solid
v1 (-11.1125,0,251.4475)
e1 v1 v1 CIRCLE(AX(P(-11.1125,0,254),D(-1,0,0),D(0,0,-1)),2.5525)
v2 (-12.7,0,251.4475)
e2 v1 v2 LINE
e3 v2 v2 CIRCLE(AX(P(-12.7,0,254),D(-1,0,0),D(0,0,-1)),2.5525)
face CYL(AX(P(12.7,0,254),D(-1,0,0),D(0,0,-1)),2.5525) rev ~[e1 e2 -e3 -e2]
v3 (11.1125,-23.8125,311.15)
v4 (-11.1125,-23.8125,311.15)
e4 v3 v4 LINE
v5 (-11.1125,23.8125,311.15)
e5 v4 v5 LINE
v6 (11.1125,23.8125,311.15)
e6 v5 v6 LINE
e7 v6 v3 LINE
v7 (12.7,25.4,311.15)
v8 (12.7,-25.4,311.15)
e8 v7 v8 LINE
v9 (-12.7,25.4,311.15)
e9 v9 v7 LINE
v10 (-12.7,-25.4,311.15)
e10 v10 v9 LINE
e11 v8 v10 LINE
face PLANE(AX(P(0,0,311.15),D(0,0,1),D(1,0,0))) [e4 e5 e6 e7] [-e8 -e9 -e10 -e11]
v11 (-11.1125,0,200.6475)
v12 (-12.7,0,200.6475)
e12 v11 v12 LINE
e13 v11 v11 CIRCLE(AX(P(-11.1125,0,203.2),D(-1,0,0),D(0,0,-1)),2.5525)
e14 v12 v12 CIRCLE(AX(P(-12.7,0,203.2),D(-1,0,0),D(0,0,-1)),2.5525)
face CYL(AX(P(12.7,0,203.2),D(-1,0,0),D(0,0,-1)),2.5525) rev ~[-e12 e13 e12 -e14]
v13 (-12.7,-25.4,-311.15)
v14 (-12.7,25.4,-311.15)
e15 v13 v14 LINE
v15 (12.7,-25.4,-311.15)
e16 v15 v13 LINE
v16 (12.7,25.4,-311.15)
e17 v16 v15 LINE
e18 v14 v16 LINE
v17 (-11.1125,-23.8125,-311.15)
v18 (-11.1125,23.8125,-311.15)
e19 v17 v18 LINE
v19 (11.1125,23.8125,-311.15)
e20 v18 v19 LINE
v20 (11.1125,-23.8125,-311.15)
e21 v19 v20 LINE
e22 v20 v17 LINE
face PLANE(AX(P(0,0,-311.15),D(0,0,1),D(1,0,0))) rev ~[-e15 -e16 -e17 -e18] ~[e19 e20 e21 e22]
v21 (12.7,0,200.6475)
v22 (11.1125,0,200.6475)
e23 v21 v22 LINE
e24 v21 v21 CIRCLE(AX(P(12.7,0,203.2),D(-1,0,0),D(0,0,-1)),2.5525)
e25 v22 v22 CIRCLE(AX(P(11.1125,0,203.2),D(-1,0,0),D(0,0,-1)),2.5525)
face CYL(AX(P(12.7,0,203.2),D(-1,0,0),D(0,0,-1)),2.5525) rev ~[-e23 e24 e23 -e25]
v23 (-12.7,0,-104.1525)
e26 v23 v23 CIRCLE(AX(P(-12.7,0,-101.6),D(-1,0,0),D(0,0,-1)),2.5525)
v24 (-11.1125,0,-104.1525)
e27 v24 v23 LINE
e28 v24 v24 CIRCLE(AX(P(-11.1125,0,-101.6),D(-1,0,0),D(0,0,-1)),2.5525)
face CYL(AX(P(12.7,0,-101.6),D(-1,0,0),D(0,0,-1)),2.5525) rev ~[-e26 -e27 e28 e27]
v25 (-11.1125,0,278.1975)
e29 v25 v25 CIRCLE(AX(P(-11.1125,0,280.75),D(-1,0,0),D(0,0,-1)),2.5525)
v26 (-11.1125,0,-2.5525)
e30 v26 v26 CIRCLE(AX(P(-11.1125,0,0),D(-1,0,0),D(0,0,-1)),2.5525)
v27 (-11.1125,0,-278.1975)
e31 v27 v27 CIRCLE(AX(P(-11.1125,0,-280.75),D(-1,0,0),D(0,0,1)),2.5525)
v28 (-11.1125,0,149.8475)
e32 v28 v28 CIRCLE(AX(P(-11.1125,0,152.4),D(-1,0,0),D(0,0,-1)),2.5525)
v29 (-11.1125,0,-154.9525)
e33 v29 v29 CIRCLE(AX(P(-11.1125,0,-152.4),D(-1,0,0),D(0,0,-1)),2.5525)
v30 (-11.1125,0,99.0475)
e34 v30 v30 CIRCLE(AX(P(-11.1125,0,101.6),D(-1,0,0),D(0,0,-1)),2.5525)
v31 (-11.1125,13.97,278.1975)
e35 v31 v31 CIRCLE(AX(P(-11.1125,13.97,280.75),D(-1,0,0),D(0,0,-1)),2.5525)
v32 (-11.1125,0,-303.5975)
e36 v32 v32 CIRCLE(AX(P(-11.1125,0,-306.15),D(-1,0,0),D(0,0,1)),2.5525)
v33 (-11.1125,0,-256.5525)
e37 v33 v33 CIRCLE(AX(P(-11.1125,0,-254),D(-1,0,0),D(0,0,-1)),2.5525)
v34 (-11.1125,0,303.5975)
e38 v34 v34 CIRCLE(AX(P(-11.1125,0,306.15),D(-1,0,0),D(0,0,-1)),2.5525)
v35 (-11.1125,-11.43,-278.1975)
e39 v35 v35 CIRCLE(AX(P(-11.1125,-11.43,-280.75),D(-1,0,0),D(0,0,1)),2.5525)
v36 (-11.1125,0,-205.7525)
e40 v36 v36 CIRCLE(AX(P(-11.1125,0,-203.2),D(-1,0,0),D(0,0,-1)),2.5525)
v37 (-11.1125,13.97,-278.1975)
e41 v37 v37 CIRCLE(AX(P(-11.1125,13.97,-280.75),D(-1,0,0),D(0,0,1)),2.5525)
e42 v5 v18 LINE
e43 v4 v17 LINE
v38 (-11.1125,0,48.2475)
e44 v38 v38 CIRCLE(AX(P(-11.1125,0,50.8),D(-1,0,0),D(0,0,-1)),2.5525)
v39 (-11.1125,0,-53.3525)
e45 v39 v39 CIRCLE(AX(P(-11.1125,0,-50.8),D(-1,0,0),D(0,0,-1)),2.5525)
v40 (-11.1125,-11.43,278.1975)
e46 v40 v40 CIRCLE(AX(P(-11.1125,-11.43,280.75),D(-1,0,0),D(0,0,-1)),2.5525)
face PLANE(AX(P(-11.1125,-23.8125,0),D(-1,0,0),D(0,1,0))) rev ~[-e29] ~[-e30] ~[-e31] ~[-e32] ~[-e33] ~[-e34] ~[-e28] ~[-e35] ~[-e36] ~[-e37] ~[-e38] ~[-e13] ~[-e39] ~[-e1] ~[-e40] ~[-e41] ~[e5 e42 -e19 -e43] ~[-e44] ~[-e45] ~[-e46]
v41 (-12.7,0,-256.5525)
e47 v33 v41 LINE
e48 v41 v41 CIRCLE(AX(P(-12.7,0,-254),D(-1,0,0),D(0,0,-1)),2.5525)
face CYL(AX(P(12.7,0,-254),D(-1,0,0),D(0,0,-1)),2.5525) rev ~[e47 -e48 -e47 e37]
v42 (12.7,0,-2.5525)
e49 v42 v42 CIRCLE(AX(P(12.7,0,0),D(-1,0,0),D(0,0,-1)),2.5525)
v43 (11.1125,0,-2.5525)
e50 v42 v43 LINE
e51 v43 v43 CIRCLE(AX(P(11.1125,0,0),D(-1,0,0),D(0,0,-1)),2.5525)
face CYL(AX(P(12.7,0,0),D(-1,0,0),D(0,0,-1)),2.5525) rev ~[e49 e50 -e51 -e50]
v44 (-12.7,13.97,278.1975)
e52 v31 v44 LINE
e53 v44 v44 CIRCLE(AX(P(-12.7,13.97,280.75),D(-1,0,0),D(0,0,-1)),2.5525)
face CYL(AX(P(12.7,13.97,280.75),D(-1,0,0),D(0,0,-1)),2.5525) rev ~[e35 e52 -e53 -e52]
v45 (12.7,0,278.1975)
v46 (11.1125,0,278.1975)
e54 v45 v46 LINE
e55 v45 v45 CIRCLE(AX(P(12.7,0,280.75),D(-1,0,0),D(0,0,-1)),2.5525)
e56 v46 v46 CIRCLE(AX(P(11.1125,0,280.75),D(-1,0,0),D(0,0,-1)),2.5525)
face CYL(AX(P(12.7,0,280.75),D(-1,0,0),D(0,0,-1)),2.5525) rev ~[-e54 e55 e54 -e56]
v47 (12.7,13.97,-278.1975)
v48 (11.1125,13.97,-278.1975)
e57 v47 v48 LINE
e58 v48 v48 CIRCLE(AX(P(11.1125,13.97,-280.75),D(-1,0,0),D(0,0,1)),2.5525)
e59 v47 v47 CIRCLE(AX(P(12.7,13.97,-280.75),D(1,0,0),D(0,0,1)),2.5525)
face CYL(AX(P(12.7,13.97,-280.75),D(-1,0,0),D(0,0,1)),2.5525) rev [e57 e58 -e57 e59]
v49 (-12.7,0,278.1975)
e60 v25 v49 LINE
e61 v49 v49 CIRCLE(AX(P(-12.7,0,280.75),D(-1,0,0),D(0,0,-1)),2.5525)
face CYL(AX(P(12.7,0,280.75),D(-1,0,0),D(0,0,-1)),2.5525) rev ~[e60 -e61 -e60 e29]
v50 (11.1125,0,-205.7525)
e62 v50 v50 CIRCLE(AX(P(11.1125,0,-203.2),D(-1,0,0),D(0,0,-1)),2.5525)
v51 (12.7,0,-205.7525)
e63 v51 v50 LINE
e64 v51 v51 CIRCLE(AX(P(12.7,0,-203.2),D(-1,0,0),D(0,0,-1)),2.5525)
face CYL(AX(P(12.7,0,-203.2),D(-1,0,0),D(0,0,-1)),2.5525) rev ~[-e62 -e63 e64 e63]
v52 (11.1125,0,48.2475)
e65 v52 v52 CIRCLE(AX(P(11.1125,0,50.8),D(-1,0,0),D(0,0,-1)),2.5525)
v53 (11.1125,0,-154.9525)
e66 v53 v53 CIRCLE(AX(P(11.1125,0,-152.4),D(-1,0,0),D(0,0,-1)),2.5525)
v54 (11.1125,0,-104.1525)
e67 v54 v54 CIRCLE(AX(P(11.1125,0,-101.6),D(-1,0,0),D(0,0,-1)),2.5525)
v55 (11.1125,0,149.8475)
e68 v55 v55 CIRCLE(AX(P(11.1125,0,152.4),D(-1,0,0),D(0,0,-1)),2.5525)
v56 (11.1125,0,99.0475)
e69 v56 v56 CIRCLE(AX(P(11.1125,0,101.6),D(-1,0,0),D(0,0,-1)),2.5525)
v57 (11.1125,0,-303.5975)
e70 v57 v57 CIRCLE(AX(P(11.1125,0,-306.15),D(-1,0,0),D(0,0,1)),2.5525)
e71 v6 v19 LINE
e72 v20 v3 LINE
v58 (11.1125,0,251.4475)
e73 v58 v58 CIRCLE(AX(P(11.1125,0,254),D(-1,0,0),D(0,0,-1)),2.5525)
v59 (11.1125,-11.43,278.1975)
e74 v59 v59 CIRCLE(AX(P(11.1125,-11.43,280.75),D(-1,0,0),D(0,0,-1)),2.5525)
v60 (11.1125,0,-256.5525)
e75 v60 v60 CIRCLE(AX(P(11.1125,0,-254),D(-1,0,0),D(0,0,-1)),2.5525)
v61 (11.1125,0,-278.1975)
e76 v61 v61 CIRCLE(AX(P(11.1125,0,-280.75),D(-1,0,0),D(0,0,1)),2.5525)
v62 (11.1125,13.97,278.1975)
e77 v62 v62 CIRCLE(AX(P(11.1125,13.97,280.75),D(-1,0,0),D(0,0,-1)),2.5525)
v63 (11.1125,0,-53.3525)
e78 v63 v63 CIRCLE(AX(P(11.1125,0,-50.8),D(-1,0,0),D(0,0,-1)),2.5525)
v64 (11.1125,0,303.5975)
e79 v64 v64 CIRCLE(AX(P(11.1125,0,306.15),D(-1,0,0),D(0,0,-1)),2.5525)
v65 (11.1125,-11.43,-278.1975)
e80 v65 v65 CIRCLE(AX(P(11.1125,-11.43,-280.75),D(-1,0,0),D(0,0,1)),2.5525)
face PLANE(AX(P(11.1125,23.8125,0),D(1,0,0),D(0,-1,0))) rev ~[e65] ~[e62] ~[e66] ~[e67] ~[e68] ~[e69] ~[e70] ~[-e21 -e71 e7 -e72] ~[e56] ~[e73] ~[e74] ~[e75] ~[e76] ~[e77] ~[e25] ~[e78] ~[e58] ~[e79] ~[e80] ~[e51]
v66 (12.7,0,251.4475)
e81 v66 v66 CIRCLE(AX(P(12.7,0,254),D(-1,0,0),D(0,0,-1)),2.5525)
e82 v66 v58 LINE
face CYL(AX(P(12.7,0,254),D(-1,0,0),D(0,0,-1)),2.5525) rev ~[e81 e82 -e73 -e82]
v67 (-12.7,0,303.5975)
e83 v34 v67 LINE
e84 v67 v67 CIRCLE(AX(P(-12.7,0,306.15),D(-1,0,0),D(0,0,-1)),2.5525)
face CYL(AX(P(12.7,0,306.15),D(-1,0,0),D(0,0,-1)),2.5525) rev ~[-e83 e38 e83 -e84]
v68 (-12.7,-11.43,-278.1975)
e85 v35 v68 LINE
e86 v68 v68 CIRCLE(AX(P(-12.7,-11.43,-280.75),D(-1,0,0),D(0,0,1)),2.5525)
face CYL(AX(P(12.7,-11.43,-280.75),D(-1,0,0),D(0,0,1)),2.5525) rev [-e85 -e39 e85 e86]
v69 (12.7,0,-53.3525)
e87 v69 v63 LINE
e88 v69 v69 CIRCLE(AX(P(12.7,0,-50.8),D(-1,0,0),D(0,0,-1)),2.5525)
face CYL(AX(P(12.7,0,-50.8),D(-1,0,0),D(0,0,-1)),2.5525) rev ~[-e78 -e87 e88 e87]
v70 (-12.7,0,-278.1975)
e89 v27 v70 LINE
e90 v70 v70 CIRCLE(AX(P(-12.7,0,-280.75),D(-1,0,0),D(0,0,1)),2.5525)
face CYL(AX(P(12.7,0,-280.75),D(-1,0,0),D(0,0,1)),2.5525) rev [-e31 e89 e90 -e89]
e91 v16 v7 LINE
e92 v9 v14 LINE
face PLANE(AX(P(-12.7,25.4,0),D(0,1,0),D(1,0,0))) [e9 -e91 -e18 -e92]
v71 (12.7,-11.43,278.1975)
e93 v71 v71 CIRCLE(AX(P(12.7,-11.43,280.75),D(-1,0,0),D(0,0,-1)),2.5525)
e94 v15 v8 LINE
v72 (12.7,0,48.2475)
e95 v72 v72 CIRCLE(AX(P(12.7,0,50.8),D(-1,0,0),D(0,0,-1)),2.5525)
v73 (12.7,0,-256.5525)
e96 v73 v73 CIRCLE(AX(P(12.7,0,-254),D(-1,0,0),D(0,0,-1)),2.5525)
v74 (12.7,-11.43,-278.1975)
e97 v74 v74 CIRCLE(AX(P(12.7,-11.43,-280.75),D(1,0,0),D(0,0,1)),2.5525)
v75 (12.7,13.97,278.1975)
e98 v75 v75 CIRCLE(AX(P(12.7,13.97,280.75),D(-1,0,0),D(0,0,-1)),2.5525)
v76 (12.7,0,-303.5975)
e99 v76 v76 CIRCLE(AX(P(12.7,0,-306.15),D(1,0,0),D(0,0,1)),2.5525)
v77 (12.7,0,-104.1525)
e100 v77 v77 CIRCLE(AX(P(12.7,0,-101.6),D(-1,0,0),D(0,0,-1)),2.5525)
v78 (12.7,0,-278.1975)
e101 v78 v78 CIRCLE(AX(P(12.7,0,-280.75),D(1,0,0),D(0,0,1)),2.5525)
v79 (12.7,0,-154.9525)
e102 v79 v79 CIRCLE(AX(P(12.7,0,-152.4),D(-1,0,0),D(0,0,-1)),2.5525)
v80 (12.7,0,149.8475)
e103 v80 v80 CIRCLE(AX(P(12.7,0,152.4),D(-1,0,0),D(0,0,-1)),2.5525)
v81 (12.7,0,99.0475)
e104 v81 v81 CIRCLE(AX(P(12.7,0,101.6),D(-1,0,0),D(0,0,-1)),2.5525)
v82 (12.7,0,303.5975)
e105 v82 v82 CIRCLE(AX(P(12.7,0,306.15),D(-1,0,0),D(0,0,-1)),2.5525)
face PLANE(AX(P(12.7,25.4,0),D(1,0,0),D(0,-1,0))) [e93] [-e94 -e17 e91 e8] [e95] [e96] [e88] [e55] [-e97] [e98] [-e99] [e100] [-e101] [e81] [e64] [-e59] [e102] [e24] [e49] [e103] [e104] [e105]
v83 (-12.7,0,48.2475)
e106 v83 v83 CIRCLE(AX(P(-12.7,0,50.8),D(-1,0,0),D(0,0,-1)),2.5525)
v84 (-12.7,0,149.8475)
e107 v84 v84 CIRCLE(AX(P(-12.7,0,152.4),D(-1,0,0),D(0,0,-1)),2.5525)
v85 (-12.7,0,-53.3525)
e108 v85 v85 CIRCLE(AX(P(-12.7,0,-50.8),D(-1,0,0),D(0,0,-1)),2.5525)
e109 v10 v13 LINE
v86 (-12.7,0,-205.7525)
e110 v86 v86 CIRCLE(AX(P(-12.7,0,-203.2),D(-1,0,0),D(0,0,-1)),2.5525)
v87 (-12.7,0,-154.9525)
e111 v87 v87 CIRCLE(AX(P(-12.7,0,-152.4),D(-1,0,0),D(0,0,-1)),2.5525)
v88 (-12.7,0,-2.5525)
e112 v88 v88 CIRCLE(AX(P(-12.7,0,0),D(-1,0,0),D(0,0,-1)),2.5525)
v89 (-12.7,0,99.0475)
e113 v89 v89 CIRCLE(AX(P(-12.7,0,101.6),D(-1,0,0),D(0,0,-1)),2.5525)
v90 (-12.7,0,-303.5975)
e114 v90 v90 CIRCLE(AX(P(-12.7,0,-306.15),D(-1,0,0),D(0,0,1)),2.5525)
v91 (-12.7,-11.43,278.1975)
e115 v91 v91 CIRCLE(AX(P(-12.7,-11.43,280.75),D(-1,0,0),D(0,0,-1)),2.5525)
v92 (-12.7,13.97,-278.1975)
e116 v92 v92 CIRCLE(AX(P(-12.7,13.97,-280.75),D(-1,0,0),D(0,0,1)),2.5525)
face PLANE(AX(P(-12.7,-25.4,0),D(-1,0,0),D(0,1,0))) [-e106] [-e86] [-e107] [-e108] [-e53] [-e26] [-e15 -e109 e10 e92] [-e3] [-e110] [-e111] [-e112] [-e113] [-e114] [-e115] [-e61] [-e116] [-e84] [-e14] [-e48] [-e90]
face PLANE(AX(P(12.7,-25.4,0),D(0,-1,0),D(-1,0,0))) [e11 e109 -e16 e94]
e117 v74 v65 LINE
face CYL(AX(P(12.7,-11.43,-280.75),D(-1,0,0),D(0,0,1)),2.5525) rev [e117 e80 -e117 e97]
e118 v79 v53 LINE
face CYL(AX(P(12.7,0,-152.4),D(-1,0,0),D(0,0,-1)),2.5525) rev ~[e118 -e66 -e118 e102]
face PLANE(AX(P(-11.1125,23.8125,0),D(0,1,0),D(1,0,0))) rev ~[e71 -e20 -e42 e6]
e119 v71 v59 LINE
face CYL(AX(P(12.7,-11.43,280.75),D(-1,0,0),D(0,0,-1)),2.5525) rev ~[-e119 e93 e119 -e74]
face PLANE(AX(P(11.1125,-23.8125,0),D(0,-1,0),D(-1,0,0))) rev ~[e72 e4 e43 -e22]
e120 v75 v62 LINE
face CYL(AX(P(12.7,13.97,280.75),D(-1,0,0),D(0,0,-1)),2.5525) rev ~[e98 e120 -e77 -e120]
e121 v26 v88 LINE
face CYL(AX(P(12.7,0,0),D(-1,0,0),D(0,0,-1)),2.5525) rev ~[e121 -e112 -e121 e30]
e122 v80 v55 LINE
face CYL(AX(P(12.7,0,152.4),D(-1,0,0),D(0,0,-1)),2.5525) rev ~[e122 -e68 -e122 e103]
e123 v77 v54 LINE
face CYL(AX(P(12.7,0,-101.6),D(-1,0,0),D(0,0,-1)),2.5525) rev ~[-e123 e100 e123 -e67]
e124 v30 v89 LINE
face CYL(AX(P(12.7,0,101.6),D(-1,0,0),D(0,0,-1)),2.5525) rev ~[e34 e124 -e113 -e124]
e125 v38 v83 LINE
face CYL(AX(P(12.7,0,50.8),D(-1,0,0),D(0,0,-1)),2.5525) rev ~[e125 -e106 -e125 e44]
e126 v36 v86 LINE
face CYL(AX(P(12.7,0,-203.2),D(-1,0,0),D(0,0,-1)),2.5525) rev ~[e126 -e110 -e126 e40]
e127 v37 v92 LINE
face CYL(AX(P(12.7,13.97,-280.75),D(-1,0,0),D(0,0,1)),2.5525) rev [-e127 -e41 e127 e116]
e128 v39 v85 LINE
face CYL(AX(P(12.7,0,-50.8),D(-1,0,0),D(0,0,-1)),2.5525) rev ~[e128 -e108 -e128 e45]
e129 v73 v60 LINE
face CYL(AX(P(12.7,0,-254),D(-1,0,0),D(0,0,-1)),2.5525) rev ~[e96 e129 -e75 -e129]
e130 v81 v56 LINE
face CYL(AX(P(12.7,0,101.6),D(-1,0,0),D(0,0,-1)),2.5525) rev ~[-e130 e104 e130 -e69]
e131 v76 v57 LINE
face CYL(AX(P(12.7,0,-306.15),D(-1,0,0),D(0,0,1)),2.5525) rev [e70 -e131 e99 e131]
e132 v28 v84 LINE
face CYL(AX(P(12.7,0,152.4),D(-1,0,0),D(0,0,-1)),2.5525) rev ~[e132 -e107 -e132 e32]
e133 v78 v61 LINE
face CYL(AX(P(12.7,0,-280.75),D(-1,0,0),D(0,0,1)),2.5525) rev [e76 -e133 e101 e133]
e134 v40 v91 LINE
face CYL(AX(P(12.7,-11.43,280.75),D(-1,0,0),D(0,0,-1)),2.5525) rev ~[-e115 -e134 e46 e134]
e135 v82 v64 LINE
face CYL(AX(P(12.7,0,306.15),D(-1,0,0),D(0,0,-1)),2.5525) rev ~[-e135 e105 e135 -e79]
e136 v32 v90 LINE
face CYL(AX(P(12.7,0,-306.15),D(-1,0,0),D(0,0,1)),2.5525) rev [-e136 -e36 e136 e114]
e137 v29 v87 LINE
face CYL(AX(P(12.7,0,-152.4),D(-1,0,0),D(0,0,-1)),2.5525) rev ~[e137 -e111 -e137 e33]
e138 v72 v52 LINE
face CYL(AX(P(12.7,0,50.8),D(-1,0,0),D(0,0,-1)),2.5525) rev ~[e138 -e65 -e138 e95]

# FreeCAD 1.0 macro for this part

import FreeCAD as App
import Part
import Sketcher
from FreeCAD import Vector
Q = App.Units.Quantity


def add_polygon(sketch, points):
    """Adds a closed chain of lines whose ends are joined by coincident constraints."""
    first, n = sketch.GeometryCount, len(points)
    for a, b in zip(points, points[1:] + points[:1]):
        sketch.addGeometry(Part.LineSegment(App.Vector(*a, 0), App.Vector(*b, 0)), False)
    for i in range(n):
        sketch.addConstraint(Sketcher.Constraint("Coincident", first + i, 2, first + (i + 1) % n, 1))

doc = App.newDocument("Part")
body = doc.addObject("PartDesign::Body", "Body")

# Sketch on XY plane
sketch1 = body.newObject("Sketcher::SketchObject", "Sketch")
sketch1.AttachmentSupport = (doc.getObject("XY_Plane"), [""])
sketch1.MapMode = "FlatFace"
add_polygon(sketch1, [(-12.7, -25.4), (12.7, -25.4), (12.7, 25.4), (-12.7, 25.4)])  # lines 0-3
add_polygon(sketch1, [(11.1125, 23.8125), (11.1125, -23.8125), (-11.1125, -23.8125), (-11.1125, 23.8125)])  # lines 4-7
sketch1.addConstraint(Sketcher.Constraint("Horizontal", 0))
sketch1.addConstraint(Sketcher.Constraint("Vertical", 1))
sketch1.addConstraint(Sketcher.Constraint("Horizontal", 2))
sketch1.addConstraint(Sketcher.Constraint("Vertical", 3))
sketch1.addConstraint(Sketcher.Constraint("Vertical", 4))
sketch1.addConstraint(Sketcher.Constraint("Horizontal", 5))
sketch1.addConstraint(Sketcher.Constraint("Vertical", 6))
sketch1.addConstraint(Sketcher.Constraint("Horizontal", 7))
sketch1.addConstraint(Sketcher.Constraint("Symmetric", 0, 2, 2, 2, -1, 1))
sketch1.addConstraint(Sketcher.Constraint("Symmetric", 4, 2, 6, 2, -1, 1))
sketch1.addConstraint(Sketcher.Constraint("DistanceX", 0, 1, 0, 2, Q("1 in")))
sketch1.addConstraint(Sketcher.Constraint("DistanceY", 1, 1, 1, 2, Q("2 in")))
sketch1.addConstraint(Sketcher.Constraint("DistanceX", 4, 2, 0, 2, Q("0.0625 in")))
sketch1.addConstraint(Sketcher.Constraint("DistanceY", 0, 2, 4, 2, Q("0.0625 in")))
pad1 = body.newObject("PartDesign::Pad", "Pad")
pad1.Profile = sketch1
pad1.Length = Q("24.5 in")
pad1.Midplane = True

# Sketch on YZ plane
sketch2 = body.newObject("Sketcher::SketchObject", "Sketch001")
sketch2.AttachmentSupport = (doc.getObject("YZ_Plane"), [""])
sketch2.MapMode = "FlatFace"
sketch2.AttachmentOffset = App.Placement(Vector(0, 0, 0.5 * 25.4), App.Rotation())
sketch2.addGeometry(Part.Circle(Vector(0, 306.15, 0), Vector(0, 0, 1), 2.5525), False)
sketch2.addGeometry(Part.Circle(Vector(0, 280.75, 0), Vector(0, 0, 1), 2.5525), False)
sketch2.addGeometry(Part.Circle(Vector(13.97, 280.75, 0), Vector(0, 0, 1), 2.5525), False)
sketch2.addGeometry(Part.Circle(Vector(-11.43, 280.75, 0), Vector(0, 0, 1), 2.5525), False)
sketch2.addConstraint(Sketcher.Constraint("Equal", 0, 1))
sketch2.addConstraint(Sketcher.Constraint("Equal", 1, 2))
sketch2.addConstraint(Sketcher.Constraint("Equal", 2, 3))
sketch2.addConstraint(Sketcher.Constraint("PointOnObject", 0, 3, -2))
sketch2.addConstraint(Sketcher.Constraint("PointOnObject", 1, 3, -2))
sketch2.addConstraint(Sketcher.Constraint("Horizontal", 1, 3, 2, 3))
sketch2.addConstraint(Sketcher.Constraint("Horizontal", 2, 3, 3, 3))
sketch2.addConstraint(Sketcher.Constraint("DistanceY", 1, 3, 0, 3, Q("1 in")))
sketch2.addConstraint(Sketcher.Constraint("DistanceX", 3, 3, 2, 3, Q("1 in")))
sketch2.addConstraint(Sketcher.Constraint("Diameter", 0, 5.105))
sketch2.addConstraint(Sketcher.Constraint("DistanceX", -1, 1, 2, 3, Q("0.55 in")))
sketch2.addConstraint(Sketcher.Constraint("DistanceY", -1, 1, 0, 3, 306.15))
doc.recompute()
hole = body.newObject("PartDesign::Hole", "Hole")
hole.Profile = sketch2
hole.ThreadType = "None"
hole.Diameter = 5.105
hole.DepthType = "ThroughAll"
doc.recompute()

mirrored = body.newObject("PartDesign::Mirrored", "Mirrored")
mirrored.Originals = [hole]
mirrored.MirrorPlane = (doc.getObject("XY_Plane"), [""])
body.Tip = mirrored

# Sketch on YZ plane
sketch3 = body.newObject("Sketcher::SketchObject", "Sketch002")
sketch3.AttachmentSupport = (doc.getObject("YZ_Plane"), [""])
sketch3.MapMode = "FlatFace"
sketch3.AttachmentOffset = App.Placement(Vector(0, 0, 0.5 * 25.4), App.Rotation())
sketch3.addGeometry(Part.Circle(Vector(0, 0, 0), Vector(0, 0, 1), 2.5525), False)
sketch3.addGeometry(Part.Circle(Vector(0, 50.8, 0), Vector(0, 0, 1), 2.5525), False)
sketch3.addGeometry(Part.Circle(Vector(0, 101.6, 0), Vector(0, 0, 1), 2.5525), False)
sketch3.addGeometry(Part.Circle(Vector(0, 152.4, 0), Vector(0, 0, 1), 2.5525), False)
sketch3.addGeometry(Part.Circle(Vector(0, 203.2, 0), Vector(0, 0, 1), 2.5525), False)
sketch3.addGeometry(Part.Circle(Vector(0, 254, 0), Vector(0, 0, 1), 2.5525), False)
sketch3.addGeometry(Part.Circle(Vector(0, -50.8, 0), Vector(0, 0, 1), 2.5525), False)
sketch3.addGeometry(Part.Circle(Vector(0, -101.6, 0), Vector(0, 0, 1), 2.5525), False)
sketch3.addGeometry(Part.Circle(Vector(0, -152.4, 0), Vector(0, 0, 1), 2.5525), False)
sketch3.addGeometry(Part.Circle(Vector(0, -203.2, 0), Vector(0, 0, 1), 2.5525), False)
sketch3.addGeometry(Part.Circle(Vector(0, -254, 0), Vector(0, 0, 1), 2.5525), False)
sketch3.addConstraint(Sketcher.Constraint("Coincident", 0, 3, -1, 1))
sketch3.addConstraint(Sketcher.Constraint("Equal", 0, 1))
sketch3.addConstraint(Sketcher.Constraint("Equal", 1, 2))
sketch3.addConstraint(Sketcher.Constraint("Equal", 2, 3))
sketch3.addConstraint(Sketcher.Constraint("Equal", 3, 4))
sketch3.addConstraint(Sketcher.Constraint("Equal", 4, 5))
sketch3.addConstraint(Sketcher.Constraint("Equal", 5, 6))
sketch3.addConstraint(Sketcher.Constraint("Equal", 6, 7))
sketch3.addConstraint(Sketcher.Constraint("Equal", 7, 8))
sketch3.addConstraint(Sketcher.Constraint("Equal", 8, 9))
sketch3.addConstraint(Sketcher.Constraint("Equal", 9, 10))
sketch3.addConstraint(Sketcher.Constraint("Symmetric", 1, 3, 6, 3, -1, 1))
sketch3.addConstraint(Sketcher.Constraint("Symmetric", 2, 3, 7, 3, -1, 1))
sketch3.addConstraint(Sketcher.Constraint("Symmetric", 3, 3, 8, 3, -1, 1))
sketch3.addConstraint(Sketcher.Constraint("Symmetric", 4, 3, 9, 3, -1, 1))
sketch3.addConstraint(Sketcher.Constraint("Symmetric", 5, 3, 10, 3, -1, 1))
sketch3.addConstraint(Sketcher.Constraint("PointOnObject", 1, 3, -2))
sketch3.addConstraint(Sketcher.Constraint("PointOnObject", 2, 3, -2))
sketch3.addConstraint(Sketcher.Constraint("PointOnObject", 3, 3, -2))
sketch3.addConstraint(Sketcher.Constraint("PointOnObject", 4, 3, -2))
sketch3.addConstraint(Sketcher.Constraint("PointOnObject", 5, 3, -2))
sketch3.addConstraint(Sketcher.Constraint("DistanceY", -1, 1, 1, 3, Q("2 in")))
sketch3.addConstraint(Sketcher.Constraint("DistanceY", -1, 1, 2, 3, Q("4 in")))
sketch3.addConstraint(Sketcher.Constraint("DistanceY", -1, 1, 3, 3, Q("6 in")))
sketch3.addConstraint(Sketcher.Constraint("DistanceY", -1, 1, 4, 3, Q("8 in")))
sketch3.addConstraint(Sketcher.Constraint("DistanceY", -1, 1, 5, 3, Q("10 in")))
sketch3.addConstraint(Sketcher.Constraint("Diameter", 0, 5.105))
doc.recompute()
hole2 = body.newObject("PartDesign::Hole", "Hole001")
hole2.Profile = sketch3
hole2.ThreadType = "None"
hole2.Diameter = 5.105
hole2.DepthType = "ThroughAll"

doc.recompute()
